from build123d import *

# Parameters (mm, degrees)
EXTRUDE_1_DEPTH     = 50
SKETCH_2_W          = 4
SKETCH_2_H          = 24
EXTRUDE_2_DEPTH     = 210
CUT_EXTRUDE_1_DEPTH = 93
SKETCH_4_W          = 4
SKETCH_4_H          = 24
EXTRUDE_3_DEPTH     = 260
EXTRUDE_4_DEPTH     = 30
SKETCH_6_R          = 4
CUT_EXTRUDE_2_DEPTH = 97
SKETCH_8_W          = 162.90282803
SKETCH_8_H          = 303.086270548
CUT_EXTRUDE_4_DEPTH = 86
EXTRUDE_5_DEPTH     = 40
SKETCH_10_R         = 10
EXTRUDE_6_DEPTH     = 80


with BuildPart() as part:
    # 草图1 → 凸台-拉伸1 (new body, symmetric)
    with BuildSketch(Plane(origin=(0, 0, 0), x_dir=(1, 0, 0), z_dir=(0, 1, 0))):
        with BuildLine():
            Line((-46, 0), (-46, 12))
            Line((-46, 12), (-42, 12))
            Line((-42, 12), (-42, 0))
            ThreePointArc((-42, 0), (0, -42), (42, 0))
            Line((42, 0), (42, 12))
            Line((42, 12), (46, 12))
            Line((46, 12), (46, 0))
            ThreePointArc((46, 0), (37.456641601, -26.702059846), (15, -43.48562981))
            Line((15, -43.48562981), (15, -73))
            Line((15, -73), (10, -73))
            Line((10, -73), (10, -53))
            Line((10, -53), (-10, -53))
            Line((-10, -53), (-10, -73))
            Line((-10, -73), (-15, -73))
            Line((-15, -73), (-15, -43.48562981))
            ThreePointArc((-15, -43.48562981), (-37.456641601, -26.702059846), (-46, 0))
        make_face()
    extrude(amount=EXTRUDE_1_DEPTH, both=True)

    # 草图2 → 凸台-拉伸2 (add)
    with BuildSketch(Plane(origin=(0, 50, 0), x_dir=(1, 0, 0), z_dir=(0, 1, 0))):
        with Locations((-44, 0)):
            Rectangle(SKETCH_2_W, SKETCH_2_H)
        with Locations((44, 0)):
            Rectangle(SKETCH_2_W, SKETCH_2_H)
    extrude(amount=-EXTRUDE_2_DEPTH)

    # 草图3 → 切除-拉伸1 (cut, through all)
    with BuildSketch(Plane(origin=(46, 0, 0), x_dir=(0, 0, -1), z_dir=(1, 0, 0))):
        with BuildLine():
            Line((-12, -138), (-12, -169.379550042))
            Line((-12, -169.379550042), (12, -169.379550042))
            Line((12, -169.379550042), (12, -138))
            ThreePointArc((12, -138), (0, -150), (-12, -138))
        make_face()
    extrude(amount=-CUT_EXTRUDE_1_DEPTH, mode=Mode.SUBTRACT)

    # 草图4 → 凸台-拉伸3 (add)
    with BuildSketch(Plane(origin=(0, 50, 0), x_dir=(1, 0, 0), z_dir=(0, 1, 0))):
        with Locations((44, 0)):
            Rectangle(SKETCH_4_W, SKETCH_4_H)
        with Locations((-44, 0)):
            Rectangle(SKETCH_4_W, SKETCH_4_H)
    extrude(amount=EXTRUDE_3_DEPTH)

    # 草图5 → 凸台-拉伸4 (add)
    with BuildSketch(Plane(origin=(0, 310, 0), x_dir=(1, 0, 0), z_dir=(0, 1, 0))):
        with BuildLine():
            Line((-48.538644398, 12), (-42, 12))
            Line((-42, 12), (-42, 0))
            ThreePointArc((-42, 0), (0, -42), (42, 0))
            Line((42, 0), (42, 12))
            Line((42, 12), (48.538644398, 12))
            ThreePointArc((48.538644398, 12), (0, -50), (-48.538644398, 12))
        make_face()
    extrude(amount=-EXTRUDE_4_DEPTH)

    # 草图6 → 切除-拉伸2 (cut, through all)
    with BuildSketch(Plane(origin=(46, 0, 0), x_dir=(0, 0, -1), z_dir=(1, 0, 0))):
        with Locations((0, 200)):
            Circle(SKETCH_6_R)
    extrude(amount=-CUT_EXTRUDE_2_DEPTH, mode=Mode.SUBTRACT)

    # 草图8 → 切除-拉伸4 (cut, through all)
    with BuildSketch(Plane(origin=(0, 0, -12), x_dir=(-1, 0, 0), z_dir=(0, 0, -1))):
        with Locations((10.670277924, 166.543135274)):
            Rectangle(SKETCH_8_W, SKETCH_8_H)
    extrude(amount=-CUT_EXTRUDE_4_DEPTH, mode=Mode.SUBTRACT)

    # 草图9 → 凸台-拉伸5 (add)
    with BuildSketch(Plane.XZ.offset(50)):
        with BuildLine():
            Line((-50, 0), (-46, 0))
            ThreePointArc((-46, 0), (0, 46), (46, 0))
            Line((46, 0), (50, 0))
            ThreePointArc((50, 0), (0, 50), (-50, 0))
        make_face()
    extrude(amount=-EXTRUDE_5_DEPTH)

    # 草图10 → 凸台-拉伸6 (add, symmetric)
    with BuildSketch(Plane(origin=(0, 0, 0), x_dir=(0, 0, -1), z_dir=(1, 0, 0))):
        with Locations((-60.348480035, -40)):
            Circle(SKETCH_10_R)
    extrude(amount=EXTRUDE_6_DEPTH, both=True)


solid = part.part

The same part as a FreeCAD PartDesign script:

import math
import FreeCAD as App
import Part
import Sketcher

V = App.Vector
Q = App.Units.Quantity


def add_polygon(sketch, points):
    """Adds a closed chain of lines whose ends are joined by coincident constraints."""
    first, n = sketch.GeometryCount, len(points)
    for a, b in zip(points, points[1:] + points[:1]):
        sketch.addGeometry(Part.LineSegment(App.Vector(*a, 0), App.Vector(*b, 0)), False)
    for i in range(n):
        sketch.addConstraint(Sketcher.Constraint("Coincident", first + i, 2, first + (i + 1) % n, 1))

doc = App.newDocument("Part")
params = doc.addObject("Spreadsheet::Sheet", "Params")
for row, (alias, value) in enumerate([
    ("sketch1_radius", "46 mm"),
    ("sketch1_radius2", "42 mm"),
    ("sketch1_width", "5 mm"),
    ("sketch1_width2", "20 mm"),
    ("sketch1_height", "12 mm"),
    ("pad1_length", "100 mm"),
    ("sketch2_width", "4 mm"),
    ("sketch2_height", "24 mm"),
    ("pad2_length", "210 mm"),
    ("sketch3_radius", "12 mm"),
    ("sketch4_width", "4 mm"),
    ("sketch4_height", "24 mm"),
    ("pad3_length", "260 mm"),
    ("sketch5_radius", "50 mm"),
    ("sketch5_radius2", "42 mm"),
    ("sketch5_height", "12 mm"),
    ("pad4_length", "30 mm"),
    ("sketch6_diameter", "8 mm"),
    ("sketch8_radius", "46 mm"),
    ("sketch8_radius2", "50 mm"),
    ("pad5_length", "40 mm"),
    ("sketch9_diameter", "20 mm"),
    ("pad6_length", "160 mm"),
], start=1):
    params.set(f"A{row}", alias)
    params.set(f"B{row}", "=" + value)
    params.setAlias(f"B{row}", alias)

body = doc.addObject("PartDesign::Body", "Body")

sketch1 = doc.addObject("Sketcher::SketchObject", "Sketch")
body.addObject(sketch1)
sketch1.AttachmentSupport = (doc.XZ_Plane, [""])
sketch1.MapMode = "FlatFace"
sketch1.addGeometry([
    Part.LineSegment(V(-46, -12, 0), V(-46, 0, 0)),
    Part.ArcOfCircle(Part.Circle(V(0, 0, 0), V(0, 0, 1), 46), math.radians(109), math.radians(180)),
    Part.LineSegment(V(-15, 43.5, 0), V(-15, 73, 0)),
    Part.LineSegment(V(-15, 73, 0), V(-10, 73, 0)),
    Part.LineSegment(V(-10, 73, 0), V(-10, 53, 0)),
    Part.LineSegment(V(-10, 53, 0), V(10, 53, 0)),
    Part.LineSegment(V(10, 53, 0), V(10, 73, 0)),
    Part.LineSegment(V(10, 73, 0), V(15, 73, 0)),
    Part.LineSegment(V(15, 73, 0), V(15, 43.5, 0)),
    Part.ArcOfCircle(Part.Circle(V(0, 0, 0), V(0, 0, 1), 46), math.radians(0), math.radians(71)),
    Part.LineSegment(V(46, 0, 0), V(46, -12, 0)),
    Part.LineSegment(V(46, -12, 0), V(42, -12, 0)),
    Part.LineSegment(V(42, -12, 0), V(42, 0, 0)),
    Part.ArcOfCircle(Part.Circle(V(0, 0, 0), V(0, 0, 1), 42), math.radians(0), math.radians(180)),
    Part.LineSegment(V(-42, 0, 0), V(-42, -12, 0)),
    Part.LineSegment(V(-42, -12, 0), V(-46, -12, 0)),
], False)
sketch1.addConstraint([
    Sketcher.Constraint("Tangent", 0, 2, 1, 2),
    Sketcher.Constraint("Coincident", 1, 1, 2, 1),
    Sketcher.Constraint("Coincident", 2, 2, 3, 1),
    Sketcher.Constraint("Coincident", 3, 2, 4, 1),
    Sketcher.Constraint("Coincident", 4, 2, 5, 1),
    Sketcher.Constraint("Coincident", 5, 2, 6, 1),
    Sketcher.Constraint("Coincident", 6, 2, 7, 1),
    Sketcher.Constraint("Coincident", 7, 2, 8, 1),
    Sketcher.Constraint("Coincident", 8, 2, 9, 2),
    Sketcher.Constraint("Tangent", 9, 1, 10, 1),
    Sketcher.Constraint("Coincident", 10, 2, 11, 1),
    Sketcher.Constraint("Coincident", 11, 2, 12, 1),
    Sketcher.Constraint("Tangent", 12, 2, 13, 1),
    Sketcher.Constraint("Tangent", 13, 2, 14, 1),
    Sketcher.Constraint("Coincident", 14, 2, 15, 1),
    Sketcher.Constraint("Coincident", 15, 2, 0, 1),
    Sketcher.Constraint("Vertical", 0),
    Sketcher.Constraint("Vertical", 2),
    Sketcher.Constraint("Horizontal", 3),
    Sketcher.Constraint("Vertical", 4),
    Sketcher.Constraint("Horizontal", 5),
    Sketcher.Constraint("Vertical", 6),
    Sketcher.Constraint("Horizontal", 7),
    Sketcher.Constraint("Vertical", 8),
    Sketcher.Constraint("Vertical", 10),
    Sketcher.Constraint("Horizontal", 11),
    Sketcher.Constraint("Vertical", 12),
    Sketcher.Constraint("Vertical", 14),
    Sketcher.Constraint("Horizontal", 15),
    Sketcher.Constraint("Coincident", 1, 3, -1, 1),
    Sketcher.Constraint("Coincident", 9, 3, -1, 1),
    Sketcher.Constraint("Coincident", 13, 3, -1, 1),
    Sketcher.Constraint("Equal", 1, 9),
    Sketcher.Constraint("Symmetric", 3, 2, 6, 2, -2),
    Sketcher.Constraint("Horizontal", 1, 1, 8, 2),
    Sketcher.Constraint("Horizontal", 11, 2, 14, 2),
    Sketcher.Constraint("Equal", 5, 4),
    Sketcher.Constraint("Radius", 1, Q("46 mm")),
    Sketcher.Constraint("Radius", 13, Q("42 mm")),
    Sketcher.Constraint("DistanceX", 3, 1, 3, 2, Q("5 mm")),
    Sketcher.Constraint("DistanceX", 5, 1, 5, 2, Q("20 mm")),
    Sketcher.Constraint("DistanceY", 0, 1, 0, 2, Q("12 mm")),
    Sketcher.Constraint("DistanceY", -1, 1, 2, 2, Q("73 mm")),
])
sketch1.setExpression("Constraints[37]", "Params.sketch1_radius")
sketch1.setExpression("Constraints[38]", "Params.sketch1_radius2")
sketch1.setExpression("Constraints[39]", "Params.sketch1_width")
sketch1.setExpression("Constraints[40]", "Params.sketch1_width2")
sketch1.setExpression("Constraints[41]", "Params.sketch1_height")
pad1 = doc.addObject("PartDesign::Pad", "Pad")
body.addObject(pad1)
pad1.Profile = sketch1
pad1.setExpression("Length", "Params.pad1_length")
pad1.Midplane = True

sketch2 = doc.addObject("Sketcher::SketchObject", "Sketch001")
body.addObject(sketch2)
sketch2.AttachmentSupport = (doc.XZ_Plane, [""])
sketch2.MapMode = "FlatFace"
sketch2.AttachmentOffset = App.Placement(V(0, 0, -50), App.Rotation())
add_polygon(sketch2, [(-46, -12), (-46, 12), (-42, 12), (-42, -12)])
add_polygon(sketch2, [(42, -12), (42, 12), (46, 12), (46, -12)])
sketch2.addConstraint([
    Sketcher.Constraint("Vertical", 0),
    Sketcher.Constraint("Horizontal", 1),
    Sketcher.Constraint("Vertical", 2),
    Sketcher.Constraint("Horizontal", 3),
    Sketcher.Constraint("Vertical", 4),
    Sketcher.Constraint("Horizontal", 5),
    Sketcher.Constraint("Vertical", 6),
    Sketcher.Constraint("Horizontal", 7),
    Sketcher.Constraint("Symmetric", 2, 2, 4, 2, -1, 1),
    Sketcher.Constraint("Symmetric", 0, 2, 6, 2, -1, 1),
    Sketcher.Constraint("Horizontal", 1, 2, 4, 2),
    Sketcher.Constraint("DistanceX", 1, 1, 1, 2, Q("4 mm")),
    Sketcher.Constraint("DistanceY", 0, 1, 0, 2, Q("24 mm")),
    Sketcher.Constraint("DistanceX", 0, 2, -1, 1, Q("46 mm")),
])
sketch2.setExpression("Constraints[19]", "Params.sketch2_width")
sketch2.setExpression("Constraints[20]", "Params.sketch2_height")
pad2 = doc.addObject("PartDesign::Pad", "Pad001")
body.addObject(pad2)
pad2.Profile = sketch2
pad2.setExpression("Length", "Params.pad2_length")

sketch3 = doc.addObject("Sketcher::SketchObject", "Sketch002")
body.addObject(sketch3)
sketch3.AttachmentSupport = (doc.YZ_Plane, [""])
sketch3.MapMode = "FlatFace"
sketch3.AttachmentOffset = App.Placement(V(0, 0, 46), App.Rotation())
sketch3.addGeometry([
    Part.LineSegment(V(-138, 12, 0), V(-169, 12, 0)),
    Part.LineSegment(V(-169, 12, 0), V(-169, -12, 0)),
    Part.LineSegment(V(-169, -12, 0), V(-138, -12, 0)),
    Part.ArcOfCircle(Part.Circle(V(-138, 0, 0), V(0, 0, 1), 12), math.radians(90), math.radians(270)),
], False)
sketch3.addConstraint([
    Sketcher.Constraint("Coincident", 0, 2, 1, 1),
    Sketcher.Constraint("Coincident", 1, 2, 2, 1),
    Sketcher.Constraint("Tangent", 2, 2, 3, 2),
    Sketcher.Constraint("Tangent", 3, 1, 0, 1),
    Sketcher.Constraint("Horizontal", 0),
    Sketcher.Constraint("Vertical", 1),
    Sketcher.Constraint("Horizontal", 2),
    Sketcher.Constraint("PointOnObject", 3, 3, -1),
    Sketcher.Constraint("Radius", 3, Q("12 mm")),
    Sketcher.Constraint("DistanceX", 3, 3, -1, 1, Q("138 mm")),
    Sketcher.Constraint("DistanceX", 0, 2, 0, 1, Q("31.37955 mm")),
])
sketch3.setExpression("Constraints[8]", "Params.sketch3_radius")
pocket1 = doc.addObject("PartDesign::Pocket", "Pocket")
body.addObject(pocket1)
pocket1.Profile = sketch3
pocket1.Type = "ThroughAll"

sketch4 = doc.addObject("Sketcher::SketchObject", "Sketch003")
body.addObject(sketch4)
sketch4.AttachmentSupport = (doc.XZ_Plane, [""])
sketch4.MapMode = "FlatFace"
sketch4.AttachmentOffset = App.Placement(V(0, 0, -50), App.Rotation())
add_polygon(sketch4, [(42, -12), (42, 12), (46, 12), (46, -12)])
add_polygon(sketch4, [(-46, -12), (-46, 12), (-42, 12), (-42, -12)])
sketch4.addConstraint([
    Sketcher.Constraint("Vertical", 0),
    Sketcher.Constraint("Horizontal", 1),
    Sketcher.Constraint("Vertical", 2),
    Sketcher.Constraint("Horizontal", 3),
    Sketcher.Constraint("Vertical", 4),
    Sketcher.Constraint("Horizontal", 5),
    Sketcher.Constraint("Vertical", 6),
    Sketcher.Constraint("Horizontal", 7),
    Sketcher.Constraint("Symmetric", 2, 2, 4, 2, -1, 1),
    Sketcher.Constraint("Symmetric", 0, 2, 6, 2, -1, 1),
    Sketcher.Constraint("Horizontal", 1, 2, 4, 2),
    Sketcher.Constraint("DistanceX", 1, 1, 1, 2, Q("4 mm")),
    Sketcher.Constraint("DistanceY", 0, 1, 0, 2, Q("24 mm")),
    Sketcher.Constraint("DistanceX", -1, 1, 0, 2, Q("42 mm")),
])
sketch4.setExpression("Constraints[19]", "Params.sketch4_width")
sketch4.setExpression("Constraints[20]", "Params.sketch4_height")
pad3 = doc.addObject("PartDesign::Pad", "Pad002")
body.addObject(pad3)
pad3.Profile = sketch4
pad3.setExpression("Length", "Params.pad3_length")
pad3.Reversed = True

sketch5 = doc.addObject("Sketcher::SketchObject", "Sketch004")
body.addObject(sketch5)
sketch5.AttachmentSupport = (doc.XZ_Plane, [""])
sketch5.MapMode = "FlatFace"
sketch5.AttachmentOffset = App.Placement(V(0, 0, -310), App.Rotation())
sketch5.addGeometry([
    Part.LineSegment(V(-42, -12, 0), V(-49, -12, 0)),
    Part.ArcOfCircle(Part.Circle(V(0, 0, 0), V(0, 0, 1), 50), math.radians(-14), math.radians(194)),
    Part.LineSegment(V(49, -12, 0), V(42, -12, 0)),
    Part.LineSegment(V(42, -12, 0), V(42, 0, 0)),
    Part.ArcOfCircle(Part.Circle(V(0, 0, 0), V(0, 0, 1), 42), math.radians(0), math.radians(180)),
    Part.LineSegment(V(-42, 0, 0), V(-42, -12, 0)),
], False)
sketch5.addConstraint([
    Sketcher.Constraint("Coincident", 0, 2, 1, 2),
    Sketcher.Constraint("Coincident", 1, 1, 2, 1),
    Sketcher.Constraint("Coincident", 2, 2, 3, 1),
    Sketcher.Constraint("Tangent", 3, 2, 4, 1),
    Sketcher.Constraint("Tangent", 4, 2, 5, 1),
    Sketcher.Constraint("Coincident", 5, 2, 0, 1),
    Sketcher.Constraint("Horizontal", 0),
    Sketcher.Constraint("Horizontal", 2),
    Sketcher.Constraint("Vertical", 3),
    Sketcher.Constraint("Vertical", 5),
    Sketcher.Constraint("Coincident", 1, 3, -1, 1),
    Sketcher.Constraint("Coincident", 4, 3, -1, 1),
    Sketcher.Constraint("Horizontal", 0, 2, 1, 1),
    Sketcher.Constraint("Radius", 1, Q("50 mm")),
    Sketcher.Constraint("Radius", 4, Q("42 mm")),
    Sketcher.Constraint("DistanceY", 3, 1, 3, 2, Q("12 mm")),
])
sketch5.setExpression("Constraints[13]", "Params.sketch5_radius")
sketch5.setExpression("Constraints[14]", "Params.sketch5_radius2")
sketch5.setExpression("Constraints[15]", "Params.sketch5_height")
pad4 = doc.addObject("PartDesign::Pad", "Pad003")
body.addObject(pad4)
pad4.Profile = sketch5
pad4.setExpression("Length", "Params.pad4_length")

sketch6 = doc.addObject("Sketcher::SketchObject", "Sketch005")
body.addObject(sketch6)
sketch6.AttachmentSupport = (doc.YZ_Plane, [""])
sketch6.MapMode = "FlatFace"
sketch6.AttachmentOffset = App.Placement(V(0, 0, 46), App.Rotation())
sketch6.addGeometry(Part.Circle(V(200, 0, 0), V(0, 0, 1), 4), False)
sketch6.addConstraint([
    Sketcher.Constraint("PointOnObject", 0, 3, -1),
    Sketcher.Constraint("Diameter", 0, Q("8 mm")),
    Sketcher.Constraint("DistanceX", -1, 1, 0, 3, Q("200 mm")),
])
sketch6.setExpression("Constraints[1]", "Params.sketch6_diameter")
pocket2 = doc.addObject("PartDesign::Pocket", "Pocket001")
body.addObject(pocket2)
pocket2.Profile = sketch6
pocket2.Type = "ThroughAll"

sketch7 = doc.addObject("Sketcher::SketchObject", "Sketch006")
body.addObject(sketch7)
sketch7.AttachmentSupport = (doc.XY_Plane, [""])
sketch7.MapMode = "FlatFace"
sketch7.AttachmentOffset = App.Placement(V(0, 0, -12), App.Rotation())
add_polygon(sketch7, [(71, 318), (71, 15), (-92, 15), (-92, 318)])
sketch7.addConstraint([
    Sketcher.Constraint("Vertical", 0),
    Sketcher.Constraint("Horizontal", 1),
    Sketcher.Constraint("Vertical", 2),
    Sketcher.Constraint("Horizontal", 3),
    Sketcher.Constraint("DistanceY", -1, 1, 0, 2, Q("15 mm")),
    Sketcher.Constraint("DistanceX", 1, 2, 1, 1, Q("162.902828 mm")),
    Sketcher.Constraint("DistanceY", 0, 2, 0, 1, Q("303.086271 mm")),
    Sketcher.Constraint("DistanceX", 1, 2, -1, 1, Q("92.121692 mm")),
])
pocket3 = doc.addObject("PartDesign::Pocket", "Pocket002")
body.addObject(pocket3)
pocket3.Profile = sketch7
pocket3.Type = "ThroughAll"
pocket3.Reversed = True

sketch8 = doc.addObject("Sketcher::SketchObject", "Sketch007")
body.addObject(sketch8)
sketch8.AttachmentSupport = (doc.XZ_Plane, [""])
sketch8.MapMode = "FlatFace"
sketch8.AttachmentOffset = App.Placement(V(0, 0, 50), App.Rotation())
sketch8.addGeometry([
    Part.LineSegment(V(-50, 0, 0), V(-46, 0, 0)),
    Part.ArcOfCircle(Part.Circle(V(0, 0, 0), V(0, 0, 1), 46), math.radians(0), math.radians(180)),
    Part.LineSegment(V(46, 0, 0), V(50, 0, 0)),
    Part.ArcOfCircle(Part.Circle(V(0, 0, 0), V(0, 0, 1), 50), math.radians(0), math.radians(180)),
], False)
sketch8.addConstraint([
    Sketcher.Constraint("Coincident", 0, 2, 1, 2),
    Sketcher.Constraint("Coincident", 1, 1, 2, 1),
    Sketcher.Constraint("Coincident", 2, 2, 3, 1),
    Sketcher.Constraint("Coincident", 3, 2, 0, 1),
    Sketcher.Constraint("Horizontal", 0),
    Sketcher.Constraint("Horizontal", 2),
    Sketcher.Constraint("Coincident", 1, 3, -1, 1),
    Sketcher.Constraint("Coincident", 3, 3, -1, 1),
    Sketcher.Constraint("PointOnObject", 0, 2, -1),
    Sketcher.Constraint("PointOnObject", 1, 1, -1),
    Sketcher.Constraint("Radius", 1, Q("46 mm")),
    Sketcher.Constraint("Radius", 3, Q("50 mm")),
])
sketch8.setExpression("Constraints[10]", "Params.sketch8_radius")
sketch8.setExpression("Constraints[11]", "Params.sketch8_radius2")
pad5 = doc.addObject("PartDesign::Pad", "Pad004")
body.addObject(pad5)
pad5.Profile = sketch8
pad5.setExpression("Length", "Params.pad5_length")
pad5.Reversed = True

sketch9 = doc.addObject("Sketcher::SketchObject", "Sketch008")
body.addObject(sketch9)
sketch9.AttachmentSupport = (doc.YZ_Plane, [""])
sketch9.MapMode = "FlatFace"
sketch9.addGeometry(Part.Circle(V(-40, 60, 0), V(0, 0, 1), 10), False)
sketch9.addConstraint([
    Sketcher.Constraint("Diameter", 0, Q("20 mm")),
    Sketcher.Constraint("DistanceX", 0, 3, -1, 1, Q("40 mm")),
    Sketcher.Constraint("DistanceY", -1, 1, 0, 3, Q("60.34848 mm")),
])
sketch9.setExpression("Constraints[0]", "Params.sketch9_diameter")
pad6 = doc.addObject("PartDesign::Pad", "Pad005")
body.addObject(pad6)
pad6.Profile = sketch9
pad6.setExpression("Length", "Params.pad6_length")
pad6.Midplane = True

doc.recompute()
